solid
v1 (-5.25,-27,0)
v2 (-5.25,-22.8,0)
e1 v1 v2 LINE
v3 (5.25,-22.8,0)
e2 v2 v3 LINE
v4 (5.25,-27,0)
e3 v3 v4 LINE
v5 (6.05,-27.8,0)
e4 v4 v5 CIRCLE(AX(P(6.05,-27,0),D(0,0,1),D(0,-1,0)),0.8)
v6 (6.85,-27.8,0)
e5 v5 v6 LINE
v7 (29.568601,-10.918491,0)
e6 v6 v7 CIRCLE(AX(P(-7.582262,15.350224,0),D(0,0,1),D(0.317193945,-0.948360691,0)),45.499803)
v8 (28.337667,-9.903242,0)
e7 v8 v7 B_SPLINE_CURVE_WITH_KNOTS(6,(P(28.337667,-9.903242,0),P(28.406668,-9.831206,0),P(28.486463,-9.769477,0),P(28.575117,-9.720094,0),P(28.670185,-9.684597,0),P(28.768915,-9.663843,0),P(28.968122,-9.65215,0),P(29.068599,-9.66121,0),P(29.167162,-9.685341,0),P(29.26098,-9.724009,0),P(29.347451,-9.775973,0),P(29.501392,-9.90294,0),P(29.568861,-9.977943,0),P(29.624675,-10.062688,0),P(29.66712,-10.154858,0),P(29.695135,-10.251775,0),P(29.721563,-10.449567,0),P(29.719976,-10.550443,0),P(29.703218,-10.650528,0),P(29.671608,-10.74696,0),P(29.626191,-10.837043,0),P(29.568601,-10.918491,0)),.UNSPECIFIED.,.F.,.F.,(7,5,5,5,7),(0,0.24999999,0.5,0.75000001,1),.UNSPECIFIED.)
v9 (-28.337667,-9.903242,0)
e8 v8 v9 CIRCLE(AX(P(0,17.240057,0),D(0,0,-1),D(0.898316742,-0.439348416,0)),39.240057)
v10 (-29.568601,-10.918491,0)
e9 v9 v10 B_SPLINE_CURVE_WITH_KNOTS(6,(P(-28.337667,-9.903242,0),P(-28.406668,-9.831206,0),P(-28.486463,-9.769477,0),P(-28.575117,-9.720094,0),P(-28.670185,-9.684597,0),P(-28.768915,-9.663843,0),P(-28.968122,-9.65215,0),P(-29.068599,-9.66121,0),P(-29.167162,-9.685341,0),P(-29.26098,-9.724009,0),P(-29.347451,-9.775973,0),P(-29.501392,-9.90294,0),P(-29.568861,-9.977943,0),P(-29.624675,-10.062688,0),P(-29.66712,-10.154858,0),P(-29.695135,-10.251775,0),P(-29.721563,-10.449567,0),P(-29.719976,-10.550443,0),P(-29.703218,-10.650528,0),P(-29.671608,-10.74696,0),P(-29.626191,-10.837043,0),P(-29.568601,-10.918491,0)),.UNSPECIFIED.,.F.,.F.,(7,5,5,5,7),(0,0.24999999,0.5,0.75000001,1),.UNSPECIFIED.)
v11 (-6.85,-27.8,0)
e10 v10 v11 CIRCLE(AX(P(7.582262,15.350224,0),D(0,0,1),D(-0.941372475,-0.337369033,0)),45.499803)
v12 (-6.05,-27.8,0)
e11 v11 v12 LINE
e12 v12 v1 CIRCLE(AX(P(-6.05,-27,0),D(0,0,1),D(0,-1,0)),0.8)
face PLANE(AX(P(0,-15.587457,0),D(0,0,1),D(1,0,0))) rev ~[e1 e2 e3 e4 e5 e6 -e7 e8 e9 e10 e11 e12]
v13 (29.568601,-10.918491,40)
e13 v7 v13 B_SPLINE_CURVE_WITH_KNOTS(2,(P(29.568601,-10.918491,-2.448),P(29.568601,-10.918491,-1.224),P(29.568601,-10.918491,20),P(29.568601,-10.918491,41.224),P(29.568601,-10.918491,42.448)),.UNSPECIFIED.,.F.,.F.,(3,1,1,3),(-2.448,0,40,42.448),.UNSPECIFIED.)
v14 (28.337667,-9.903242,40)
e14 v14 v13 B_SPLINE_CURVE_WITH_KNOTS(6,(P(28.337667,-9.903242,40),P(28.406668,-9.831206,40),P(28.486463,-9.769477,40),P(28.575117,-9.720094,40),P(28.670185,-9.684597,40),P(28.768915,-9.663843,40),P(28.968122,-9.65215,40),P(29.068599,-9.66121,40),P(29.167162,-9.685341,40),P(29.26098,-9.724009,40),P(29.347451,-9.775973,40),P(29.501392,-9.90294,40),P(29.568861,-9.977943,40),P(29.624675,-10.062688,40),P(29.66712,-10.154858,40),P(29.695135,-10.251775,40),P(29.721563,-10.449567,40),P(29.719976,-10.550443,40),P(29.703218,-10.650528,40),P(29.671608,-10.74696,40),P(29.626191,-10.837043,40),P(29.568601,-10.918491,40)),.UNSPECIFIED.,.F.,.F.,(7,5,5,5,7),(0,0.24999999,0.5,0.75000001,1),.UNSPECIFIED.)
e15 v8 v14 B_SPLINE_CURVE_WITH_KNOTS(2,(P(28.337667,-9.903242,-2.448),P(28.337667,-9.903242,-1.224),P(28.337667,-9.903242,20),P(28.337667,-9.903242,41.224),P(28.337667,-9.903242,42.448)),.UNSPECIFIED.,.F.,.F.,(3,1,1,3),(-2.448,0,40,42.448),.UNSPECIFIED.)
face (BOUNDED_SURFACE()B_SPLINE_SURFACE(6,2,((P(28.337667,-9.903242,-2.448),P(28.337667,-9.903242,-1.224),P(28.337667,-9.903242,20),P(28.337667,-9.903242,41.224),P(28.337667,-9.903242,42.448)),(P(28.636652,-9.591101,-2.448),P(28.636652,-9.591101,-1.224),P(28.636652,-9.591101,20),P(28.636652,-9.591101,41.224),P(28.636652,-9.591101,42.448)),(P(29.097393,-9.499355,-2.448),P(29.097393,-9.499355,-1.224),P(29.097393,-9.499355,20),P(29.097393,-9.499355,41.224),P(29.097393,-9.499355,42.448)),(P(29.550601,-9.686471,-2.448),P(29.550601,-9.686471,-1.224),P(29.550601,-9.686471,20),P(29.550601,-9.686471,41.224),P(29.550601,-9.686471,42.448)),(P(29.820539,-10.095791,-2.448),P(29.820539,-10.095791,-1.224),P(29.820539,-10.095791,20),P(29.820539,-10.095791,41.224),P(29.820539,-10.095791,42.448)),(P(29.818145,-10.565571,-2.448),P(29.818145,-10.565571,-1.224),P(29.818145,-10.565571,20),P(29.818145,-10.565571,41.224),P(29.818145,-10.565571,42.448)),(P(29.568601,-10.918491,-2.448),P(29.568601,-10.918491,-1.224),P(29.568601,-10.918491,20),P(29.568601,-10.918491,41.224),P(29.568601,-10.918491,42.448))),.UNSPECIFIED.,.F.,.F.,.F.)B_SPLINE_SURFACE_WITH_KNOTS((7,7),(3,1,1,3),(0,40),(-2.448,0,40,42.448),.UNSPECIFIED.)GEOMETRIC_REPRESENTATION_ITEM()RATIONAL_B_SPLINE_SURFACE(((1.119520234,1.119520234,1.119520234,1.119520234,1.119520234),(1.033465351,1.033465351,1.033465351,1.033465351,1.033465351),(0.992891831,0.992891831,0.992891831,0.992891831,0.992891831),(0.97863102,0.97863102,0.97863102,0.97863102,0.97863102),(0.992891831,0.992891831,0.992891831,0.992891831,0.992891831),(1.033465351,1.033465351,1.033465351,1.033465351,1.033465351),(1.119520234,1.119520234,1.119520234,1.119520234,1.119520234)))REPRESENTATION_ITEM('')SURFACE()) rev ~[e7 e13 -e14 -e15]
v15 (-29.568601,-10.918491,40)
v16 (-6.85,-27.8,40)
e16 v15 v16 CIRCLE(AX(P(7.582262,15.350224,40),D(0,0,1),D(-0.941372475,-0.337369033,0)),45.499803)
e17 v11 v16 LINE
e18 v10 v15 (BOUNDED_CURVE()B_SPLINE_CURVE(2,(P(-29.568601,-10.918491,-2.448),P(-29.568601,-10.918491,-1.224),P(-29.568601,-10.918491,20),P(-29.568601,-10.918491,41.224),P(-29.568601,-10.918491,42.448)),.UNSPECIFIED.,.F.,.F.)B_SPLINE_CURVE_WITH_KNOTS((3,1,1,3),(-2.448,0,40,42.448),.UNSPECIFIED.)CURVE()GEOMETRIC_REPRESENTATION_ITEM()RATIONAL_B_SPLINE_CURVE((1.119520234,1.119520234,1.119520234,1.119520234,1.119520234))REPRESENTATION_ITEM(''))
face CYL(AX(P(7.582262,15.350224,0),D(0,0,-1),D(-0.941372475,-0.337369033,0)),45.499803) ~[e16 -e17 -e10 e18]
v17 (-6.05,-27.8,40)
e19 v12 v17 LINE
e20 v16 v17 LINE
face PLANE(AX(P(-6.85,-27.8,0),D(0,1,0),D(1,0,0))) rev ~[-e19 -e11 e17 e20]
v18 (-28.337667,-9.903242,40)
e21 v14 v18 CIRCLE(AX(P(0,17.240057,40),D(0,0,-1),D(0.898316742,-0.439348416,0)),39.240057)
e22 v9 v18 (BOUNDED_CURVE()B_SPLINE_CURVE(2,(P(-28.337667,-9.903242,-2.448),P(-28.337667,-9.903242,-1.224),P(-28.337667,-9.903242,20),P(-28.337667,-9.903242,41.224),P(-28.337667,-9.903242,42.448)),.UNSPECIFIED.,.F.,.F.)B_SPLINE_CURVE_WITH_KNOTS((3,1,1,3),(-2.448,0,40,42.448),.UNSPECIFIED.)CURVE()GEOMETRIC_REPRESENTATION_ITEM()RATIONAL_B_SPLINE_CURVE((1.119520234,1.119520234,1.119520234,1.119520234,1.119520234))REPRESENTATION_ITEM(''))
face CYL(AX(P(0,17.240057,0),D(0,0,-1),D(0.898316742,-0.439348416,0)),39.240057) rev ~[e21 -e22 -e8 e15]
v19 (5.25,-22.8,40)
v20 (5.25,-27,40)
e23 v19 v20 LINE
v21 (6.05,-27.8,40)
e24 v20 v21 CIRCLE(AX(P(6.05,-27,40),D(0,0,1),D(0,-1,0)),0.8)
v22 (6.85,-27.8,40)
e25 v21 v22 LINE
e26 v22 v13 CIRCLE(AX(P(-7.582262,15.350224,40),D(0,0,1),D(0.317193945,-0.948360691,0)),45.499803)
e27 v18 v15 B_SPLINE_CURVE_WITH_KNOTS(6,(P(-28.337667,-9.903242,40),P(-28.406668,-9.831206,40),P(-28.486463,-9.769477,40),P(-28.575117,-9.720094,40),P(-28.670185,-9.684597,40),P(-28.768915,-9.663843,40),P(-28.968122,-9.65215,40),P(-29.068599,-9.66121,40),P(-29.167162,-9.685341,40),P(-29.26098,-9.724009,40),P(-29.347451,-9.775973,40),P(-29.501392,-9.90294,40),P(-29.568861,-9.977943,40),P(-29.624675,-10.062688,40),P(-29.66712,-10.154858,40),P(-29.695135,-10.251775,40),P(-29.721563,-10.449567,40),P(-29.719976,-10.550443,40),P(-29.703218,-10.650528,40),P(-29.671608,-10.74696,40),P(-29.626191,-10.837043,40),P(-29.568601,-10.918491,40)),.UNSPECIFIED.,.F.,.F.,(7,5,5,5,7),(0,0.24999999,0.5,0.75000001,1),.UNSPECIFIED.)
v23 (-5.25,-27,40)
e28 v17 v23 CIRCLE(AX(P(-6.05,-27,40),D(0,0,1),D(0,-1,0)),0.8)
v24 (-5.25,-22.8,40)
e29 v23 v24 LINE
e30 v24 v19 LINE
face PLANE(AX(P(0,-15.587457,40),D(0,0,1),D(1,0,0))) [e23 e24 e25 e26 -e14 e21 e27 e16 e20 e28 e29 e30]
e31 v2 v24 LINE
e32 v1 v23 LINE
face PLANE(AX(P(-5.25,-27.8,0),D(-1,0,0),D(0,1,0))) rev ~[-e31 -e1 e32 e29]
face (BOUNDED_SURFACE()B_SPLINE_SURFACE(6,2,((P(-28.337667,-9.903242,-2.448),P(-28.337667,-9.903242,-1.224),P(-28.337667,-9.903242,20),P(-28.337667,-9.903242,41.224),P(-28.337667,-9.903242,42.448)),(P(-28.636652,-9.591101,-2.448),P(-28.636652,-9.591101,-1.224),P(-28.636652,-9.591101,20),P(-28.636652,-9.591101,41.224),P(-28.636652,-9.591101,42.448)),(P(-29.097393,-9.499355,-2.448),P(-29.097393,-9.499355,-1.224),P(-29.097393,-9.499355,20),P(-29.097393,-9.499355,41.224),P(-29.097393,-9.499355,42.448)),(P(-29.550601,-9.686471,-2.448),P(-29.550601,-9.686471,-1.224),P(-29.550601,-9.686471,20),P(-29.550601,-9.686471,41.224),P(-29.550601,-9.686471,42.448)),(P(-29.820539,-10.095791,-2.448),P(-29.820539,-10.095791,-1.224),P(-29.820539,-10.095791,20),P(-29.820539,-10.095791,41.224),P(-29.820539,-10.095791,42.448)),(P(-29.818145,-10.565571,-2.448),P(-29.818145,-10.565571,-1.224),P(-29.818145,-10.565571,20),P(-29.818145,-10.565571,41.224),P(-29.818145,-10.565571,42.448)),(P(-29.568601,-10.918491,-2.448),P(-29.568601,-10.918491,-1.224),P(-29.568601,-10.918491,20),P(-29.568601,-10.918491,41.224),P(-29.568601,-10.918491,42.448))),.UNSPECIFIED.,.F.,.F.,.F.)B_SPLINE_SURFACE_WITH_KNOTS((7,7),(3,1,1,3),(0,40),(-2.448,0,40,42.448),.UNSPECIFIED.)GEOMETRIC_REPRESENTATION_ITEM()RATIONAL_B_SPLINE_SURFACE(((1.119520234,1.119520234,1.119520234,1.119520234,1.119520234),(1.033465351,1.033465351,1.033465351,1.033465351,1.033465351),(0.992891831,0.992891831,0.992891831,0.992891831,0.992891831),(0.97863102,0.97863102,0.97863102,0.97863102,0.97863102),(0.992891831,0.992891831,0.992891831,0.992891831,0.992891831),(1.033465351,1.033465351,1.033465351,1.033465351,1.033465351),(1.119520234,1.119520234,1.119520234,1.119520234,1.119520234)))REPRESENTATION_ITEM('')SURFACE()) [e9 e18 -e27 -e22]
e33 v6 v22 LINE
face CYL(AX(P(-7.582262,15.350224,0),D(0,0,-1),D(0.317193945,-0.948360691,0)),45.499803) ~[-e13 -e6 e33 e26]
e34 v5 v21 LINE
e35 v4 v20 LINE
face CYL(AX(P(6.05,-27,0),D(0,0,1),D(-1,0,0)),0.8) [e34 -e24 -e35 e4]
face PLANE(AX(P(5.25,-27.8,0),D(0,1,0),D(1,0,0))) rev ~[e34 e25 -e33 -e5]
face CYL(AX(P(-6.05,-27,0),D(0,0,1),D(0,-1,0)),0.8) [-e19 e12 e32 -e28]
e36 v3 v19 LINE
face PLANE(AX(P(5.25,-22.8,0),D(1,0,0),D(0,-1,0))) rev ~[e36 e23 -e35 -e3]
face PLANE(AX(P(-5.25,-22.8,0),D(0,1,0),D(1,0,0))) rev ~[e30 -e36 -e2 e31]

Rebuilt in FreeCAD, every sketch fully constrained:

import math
import FreeCAD as App
import Part
import Sketcher
from FreeCAD import Vector
Q = App.Units.Quantity


def edges_at(feature, points):
    """Names of the edges that pass closest to the given points."""
    edges = feature.Shape.Edges
    near = lambda p: min(range(len(edges)), key=lambda i: edges[i].distToShape(Part.Vertex(*p))[0])
    return sorted({f"Edge{near(p) + 1}" for p in points})

doc = App.newDocument("Part")
body = doc.addObject("PartDesign::Body", "Body")

sketch1 = doc.addObject("Sketcher::SketchObject", "Sketch")
body.addObject(sketch1)
sketch1.AttachmentSupport = (doc.XY_Plane, [""])
sketch1.MapMode = "FlatFace"
sketch1.addGeometry(Part.ArcOfCircle(Part.Circle(Vector(0, 17.2, 0), Vector(0, 0, 1), 39.2), math.radians(-154), math.radians(-26)), False)
sketch1.addGeometry(Part.ArcOfCircle(Part.Circle(Vector(7.6, 15.4, 0), Vector(0, 0, 1), 45.5), math.radians(-160), math.radians(-108)), False)
sketch1.addGeometry(Part.LineSegment(Vector(-6.8, -27.8, 0), Vector(-5.2, -27.8, 0)), False)
sketch1.addGeometry(Part.LineSegment(Vector(-5.2, -27.8, 0), Vector(-5.2, -22.8, 0)), False)
sketch1.addGeometry(Part.LineSegment(Vector(-5.2, -22.8, 0), Vector(5.2, -22.8, 0)), False)
sketch1.addGeometry(Part.LineSegment(Vector(5.2, -22.8, 0), Vector(5.2, -27.8, 0)), False)
sketch1.addGeometry(Part.LineSegment(Vector(5.2, -27.8, 0), Vector(6.8, -27.8, 0)), False)
sketch1.addGeometry(Part.ArcOfCircle(Part.Circle(Vector(-7.6, 15.4, 0), Vector(0, 0, 1), 45.5), math.radians(-72), math.radians(-20)), False)
sketch1.addConstraint(Sketcher.Constraint("Coincident", 0, 1, 1, 1))
sketch1.addConstraint(Sketcher.Constraint("Coincident", 1, 2, 2, 1))
sketch1.addConstraint(Sketcher.Constraint("Coincident", 2, 2, 3, 1))
sketch1.addConstraint(Sketcher.Constraint("Coincident", 3, 2, 4, 1))
sketch1.addConstraint(Sketcher.Constraint("Coincident", 4, 2, 5, 1))
sketch1.addConstraint(Sketcher.Constraint("Coincident", 5, 2, 6, 1))
sketch1.addConstraint(Sketcher.Constraint("Coincident", 6, 2, 7, 1))
sketch1.addConstraint(Sketcher.Constraint("Coincident", 7, 2, 0, 2))
sketch1.addConstraint(Sketcher.Constraint("Horizontal", 2))
sketch1.addConstraint(Sketcher.Constraint("Vertical", 3))
sketch1.addConstraint(Sketcher.Constraint("Horizontal", 4))
sketch1.addConstraint(Sketcher.Constraint("Vertical", 5))
sketch1.addConstraint(Sketcher.Constraint("Horizontal", 6))
sketch1.addConstraint(Sketcher.Constraint("Equal", 1, 7))
sketch1.addConstraint(Sketcher.Constraint("Symmetric", 0, 1, 7, 2, -1, 1))
sketch1.addConstraint(Sketcher.Constraint("Symmetric", 1, 3, 7, 3, -2))
sketch1.addConstraint(Sketcher.Constraint("Symmetric", 2, 2, 5, 2, -2))
sketch1.addConstraint(Sketcher.Constraint("DistanceY", 3, 1, 3, 2, Q("5 mm")))
sketch1.addConstraint(Sketcher.Constraint("DistanceX", 2, 1, 2, 2, Q("1.6 mm")))
sketch1.addConstraint(Sketcher.Constraint("DistanceX", 4, 1, 4, 2, Q("10.5 mm")))
sketch1.addConstraint(Sketcher.Constraint("DistanceX", 0, 1, 2, 2, Q("30 mm")))
sketch1.addConstraint(Sketcher.Constraint("DistanceY", 1, 2, -1, 1, Q("27.8 mm")))
sketch1.addConstraint(Sketcher.Constraint("Radius", 0, Q("39.240057 mm")))
sketch1.addConstraint(Sketcher.Constraint("Radius", 1, Q("45.499803 mm")))
pad1 = doc.addObject("PartDesign::Pad", "Pad")
body.addObject(pad1)
pad1.Profile = sketch1
pad1.Length = 40
doc.recompute()

fillet = doc.addObject("PartDesign::Fillet", "Fillet")
body.addObject(fillet)
fillet.Base = (pad1, edges_at(pad1, [
    (-35.25, 0, 20),
    (35.25, 0, 20),
    (-5.25, -27.8, 20),
    (5.25, -27.8, 20),
]))
fillet.Radius = 0.8

doc.recompute()
